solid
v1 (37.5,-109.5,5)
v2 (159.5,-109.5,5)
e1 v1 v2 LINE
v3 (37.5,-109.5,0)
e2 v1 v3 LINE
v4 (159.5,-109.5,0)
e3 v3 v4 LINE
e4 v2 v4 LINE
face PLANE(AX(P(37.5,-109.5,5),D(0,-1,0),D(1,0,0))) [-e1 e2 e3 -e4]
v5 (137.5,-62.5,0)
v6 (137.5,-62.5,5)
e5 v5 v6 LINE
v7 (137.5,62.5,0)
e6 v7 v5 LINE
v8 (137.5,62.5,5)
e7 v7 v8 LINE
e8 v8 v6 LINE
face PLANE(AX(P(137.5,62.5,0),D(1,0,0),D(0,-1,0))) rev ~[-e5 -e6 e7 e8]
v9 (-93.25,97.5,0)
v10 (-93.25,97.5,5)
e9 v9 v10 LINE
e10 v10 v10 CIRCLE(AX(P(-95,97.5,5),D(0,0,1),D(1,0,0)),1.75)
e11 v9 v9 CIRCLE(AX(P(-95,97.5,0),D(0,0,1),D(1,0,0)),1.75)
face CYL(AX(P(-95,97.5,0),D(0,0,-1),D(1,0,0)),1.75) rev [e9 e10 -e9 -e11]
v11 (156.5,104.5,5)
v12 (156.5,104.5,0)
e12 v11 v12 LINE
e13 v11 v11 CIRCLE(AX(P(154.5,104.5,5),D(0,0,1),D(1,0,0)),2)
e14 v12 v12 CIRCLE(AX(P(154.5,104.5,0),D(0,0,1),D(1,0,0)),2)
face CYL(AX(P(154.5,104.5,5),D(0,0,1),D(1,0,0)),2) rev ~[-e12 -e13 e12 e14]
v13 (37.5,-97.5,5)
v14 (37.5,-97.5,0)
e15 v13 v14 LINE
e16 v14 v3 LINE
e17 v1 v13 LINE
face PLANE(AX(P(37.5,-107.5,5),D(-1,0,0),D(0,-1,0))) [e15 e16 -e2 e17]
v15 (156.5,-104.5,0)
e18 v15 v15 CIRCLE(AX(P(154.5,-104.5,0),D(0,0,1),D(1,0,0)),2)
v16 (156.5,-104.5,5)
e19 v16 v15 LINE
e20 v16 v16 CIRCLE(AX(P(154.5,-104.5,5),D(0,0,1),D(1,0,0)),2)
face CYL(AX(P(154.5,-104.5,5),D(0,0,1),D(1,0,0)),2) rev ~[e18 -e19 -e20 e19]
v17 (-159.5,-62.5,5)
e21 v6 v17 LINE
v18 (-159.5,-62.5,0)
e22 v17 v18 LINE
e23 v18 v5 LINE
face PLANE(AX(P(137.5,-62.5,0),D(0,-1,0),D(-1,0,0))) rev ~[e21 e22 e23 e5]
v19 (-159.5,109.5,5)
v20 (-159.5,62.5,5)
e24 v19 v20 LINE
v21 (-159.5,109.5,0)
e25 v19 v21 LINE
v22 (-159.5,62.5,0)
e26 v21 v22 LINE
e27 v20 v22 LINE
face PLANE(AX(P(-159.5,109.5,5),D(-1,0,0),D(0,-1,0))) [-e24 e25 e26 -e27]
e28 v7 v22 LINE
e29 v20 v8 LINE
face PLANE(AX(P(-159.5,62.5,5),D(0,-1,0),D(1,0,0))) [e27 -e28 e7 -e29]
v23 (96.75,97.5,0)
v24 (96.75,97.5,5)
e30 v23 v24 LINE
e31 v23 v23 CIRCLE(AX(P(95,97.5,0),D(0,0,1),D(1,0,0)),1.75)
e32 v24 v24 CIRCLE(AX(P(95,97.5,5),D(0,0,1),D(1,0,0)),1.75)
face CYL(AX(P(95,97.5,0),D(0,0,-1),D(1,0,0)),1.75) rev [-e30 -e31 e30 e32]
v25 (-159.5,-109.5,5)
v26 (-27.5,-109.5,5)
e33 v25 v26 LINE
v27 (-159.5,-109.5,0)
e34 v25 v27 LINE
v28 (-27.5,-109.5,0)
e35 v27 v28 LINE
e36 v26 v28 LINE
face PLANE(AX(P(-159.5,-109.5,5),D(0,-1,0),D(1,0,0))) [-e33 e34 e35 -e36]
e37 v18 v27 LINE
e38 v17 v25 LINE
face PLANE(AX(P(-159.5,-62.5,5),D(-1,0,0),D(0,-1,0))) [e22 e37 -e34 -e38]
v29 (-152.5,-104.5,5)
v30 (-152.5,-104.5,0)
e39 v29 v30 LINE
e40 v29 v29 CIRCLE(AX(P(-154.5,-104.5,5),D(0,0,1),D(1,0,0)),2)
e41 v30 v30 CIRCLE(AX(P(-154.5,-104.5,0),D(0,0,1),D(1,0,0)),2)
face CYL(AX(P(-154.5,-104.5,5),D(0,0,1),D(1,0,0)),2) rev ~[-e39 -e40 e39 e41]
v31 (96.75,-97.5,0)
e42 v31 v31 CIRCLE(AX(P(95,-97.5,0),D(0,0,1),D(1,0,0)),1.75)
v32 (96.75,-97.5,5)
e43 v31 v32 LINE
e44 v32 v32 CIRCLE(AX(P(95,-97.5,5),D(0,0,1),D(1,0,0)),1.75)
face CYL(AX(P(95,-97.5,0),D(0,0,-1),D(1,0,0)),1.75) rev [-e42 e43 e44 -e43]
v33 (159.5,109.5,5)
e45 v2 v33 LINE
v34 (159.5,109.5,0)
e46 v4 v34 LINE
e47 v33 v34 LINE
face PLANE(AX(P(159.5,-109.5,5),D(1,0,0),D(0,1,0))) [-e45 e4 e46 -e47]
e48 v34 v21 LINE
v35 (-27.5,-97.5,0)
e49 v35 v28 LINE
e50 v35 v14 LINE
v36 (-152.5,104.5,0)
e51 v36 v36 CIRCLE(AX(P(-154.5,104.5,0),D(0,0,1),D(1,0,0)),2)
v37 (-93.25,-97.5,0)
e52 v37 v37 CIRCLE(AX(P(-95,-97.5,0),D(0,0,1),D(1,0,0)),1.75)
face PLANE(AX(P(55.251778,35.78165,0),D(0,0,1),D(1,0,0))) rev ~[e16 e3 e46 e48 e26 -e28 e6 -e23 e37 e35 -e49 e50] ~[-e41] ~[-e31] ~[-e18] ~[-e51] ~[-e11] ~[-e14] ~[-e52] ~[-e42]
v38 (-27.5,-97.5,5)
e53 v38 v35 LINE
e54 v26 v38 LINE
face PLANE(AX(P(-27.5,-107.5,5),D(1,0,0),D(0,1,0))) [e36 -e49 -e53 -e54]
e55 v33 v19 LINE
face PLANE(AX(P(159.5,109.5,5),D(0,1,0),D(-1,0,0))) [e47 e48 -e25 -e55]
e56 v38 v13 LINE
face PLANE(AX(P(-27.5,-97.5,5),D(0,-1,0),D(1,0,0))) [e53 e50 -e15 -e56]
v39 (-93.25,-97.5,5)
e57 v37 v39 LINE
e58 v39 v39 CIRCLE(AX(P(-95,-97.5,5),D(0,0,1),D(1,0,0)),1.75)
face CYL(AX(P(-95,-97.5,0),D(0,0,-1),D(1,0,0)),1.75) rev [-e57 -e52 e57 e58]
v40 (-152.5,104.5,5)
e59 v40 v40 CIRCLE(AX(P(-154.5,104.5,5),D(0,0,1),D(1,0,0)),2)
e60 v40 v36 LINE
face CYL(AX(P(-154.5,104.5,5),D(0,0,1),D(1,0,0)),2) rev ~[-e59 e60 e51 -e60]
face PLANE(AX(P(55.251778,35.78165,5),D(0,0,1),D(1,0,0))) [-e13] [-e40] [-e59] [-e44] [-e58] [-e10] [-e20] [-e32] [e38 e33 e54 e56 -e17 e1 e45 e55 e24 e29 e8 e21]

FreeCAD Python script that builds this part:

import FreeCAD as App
import Part
import Sketcher

V = App.Vector

doc = App.newDocument("Part")
body = doc.addObject("PartDesign::Body", "Body")

sketch1 = body.newObject("Sketcher::SketchObject", "Sketch")
sketch1.AttachmentSupport = (doc.getObject("XY_Plane"), [""])
sketch1.MapMode = "FlatFace"
sketch1.addGeometry([
    Part.LineSegment(V(157.5, 107.5, 0), V(-157.5, 107.5, 0)),
    Part.LineSegment(V(-157.5, 107.5, 0), V(-157.5, 62.5, 0)),
    Part.LineSegment(V(-157.5, 62.5, 0), V(137.5, 62.5, 0)),
    Part.LineSegment(V(137.5, 62.5, 0), V(137.5, -62.5, 0)),
    Part.LineSegment(V(137.5, -62.5, 0), V(-157.5, -62.5, 0)),
    Part.LineSegment(V(-157.5, -62.5, 0), V(-157.5, -107.5, 0)),
    Part.LineSegment(V(-157.5, -107.5, 0), V(157.5, -107.5, 0)),
    Part.LineSegment(V(157.5, -107.5, 0), V(157.5, 107.5, 0)),
    Part.Circle(V(-95, -97.5, 0), V(0, 0, 1), 1.75),
    Part.Circle(V(95, -97.5, 0), V(0, 0, 1), 1.75),
    Part.Circle(V(-95, 97.5, 0), V(0, 0, 1), 1.75),
    Part.Circle(V(95, 97.5, 0), V(0, 0, 1), 1.75),
], False)
sketch1.addConstraint([
    Sketcher.Constraint("Coincident", 0, 2, 1, 1),
    Sketcher.Constraint("Coincident", 1, 2, 2, 1),
    Sketcher.Constraint("Coincident", 2, 2, 3, 1),
    Sketcher.Constraint("Coincident", 3, 2, 4, 1),
    Sketcher.Constraint("Coincident", 4, 2, 5, 1),
    Sketcher.Constraint("Coincident", 5, 2, 6, 1),
    Sketcher.Constraint("Coincident", 6, 2, 7, 1),
    Sketcher.Constraint("Coincident", 7, 2, 0, 1),
    Sketcher.Constraint("Horizontal", 0),
    Sketcher.Constraint("Vertical", 1),
    Sketcher.Constraint("Horizontal", 2),
    Sketcher.Constraint("Vertical", 3),
    Sketcher.Constraint("Horizontal", 4),
    Sketcher.Constraint("Vertical", 5),
    Sketcher.Constraint("Horizontal", 6),
    Sketcher.Constraint("Vertical", 7),
    Sketcher.Constraint("Equal", 8, 9),
    Sketcher.Constraint("Equal", 9, 10),
    Sketcher.Constraint("Equal", 10, 11),
    Sketcher.Constraint("Symmetric", 9, 3, 10, 3, -1, 1),
    Sketcher.Constraint("Symmetric", 8, 3, 11, 3, -1, 1),
    Sketcher.Constraint("Symmetric", 0, 2, 6, 2, -1, 1),
    Sketcher.Constraint("Symmetric", 8, 3, 9, 3, -2),
    Sketcher.Constraint("Symmetric", 1, 2, 4, 2, -1),
    Sketcher.Constraint("Diameter", 8, 3.5),
    Sketcher.Constraint("DistanceX", 0, 2, 0, 1, 315.0),
    Sketcher.Constraint("DistanceX", 2, 1, 2, 2, 295.0),
    Sketcher.Constraint("DistanceY", 1, 2, 1, 1, 45.0),
    Sketcher.Constraint("DistanceY", 3, 2, 3, 1, 125.0),
    Sketcher.Constraint("DistanceX", 8, 3, -1, 1, 95.0),
    Sketcher.Constraint("DistanceY", 8, 3, 10, 3, 195.0),
])
pad1 = body.newObject("PartDesign::Pad", "Pad")
pad1.Profile = sketch1
pad1.Length = 5

sketch2 = body.newObject("Sketcher::SketchObject", "Sketch001")
sketch2.AttachmentSupport = (doc.getObject("XY_Plane"), [""])
sketch2.MapMode = "FlatFace"
sketch2.AttachmentOffset = App.Placement(V(0, 0, 5), App.Rotation())
sketch2.addGeometry([
    Part.Circle(V(-154.5, -104.5, 0), V(0, 0, 1), 2),
    Part.Circle(V(154.5, 274.5, 0), V(0, 0, 1), 2),
    Part.Circle(V(-59.578675, 247.267262, 0), V(0, 0, 1), 2),
    Part.LineSegment(V(-27.5, -97.5, 0), V(-27.5, -107.5, 0)),
    Part.LineSegment(V(-27.5, -107.5, 0), V(37.5, -107.5, 0)),
    Part.LineSegment(V(37.5, -107.5, 0), V(37.5, -97.5, 0)),
    Part.LineSegment(V(37.5, -97.5, 0), V(-27.5, -97.5, 0)),
    Part.Circle(V(154.5, -104.5, 0), V(0, 0, 1), 2),
    Part.Circle(V(-154.5, 104.5, 0), V(0, 0, 1), 2),
    Part.Circle(V(154.5, 104.5, 0), V(0, 0, 1), 2),
], False)
sketch2.addConstraint([
    Sketcher.Constraint("Coincident", 3, 2, 4, 1),
    Sketcher.Constraint("Coincident", 4, 2, 5, 1),
    Sketcher.Constraint("Coincident", 5, 2, 6, 1),
    Sketcher.Constraint("Coincident", 6, 2, 3, 1),
    Sketcher.Constraint("Vertical", 3),
    Sketcher.Constraint("Horizontal", 4),
    Sketcher.Constraint("Vertical", 5),
    Sketcher.Constraint("Horizontal", 6),
    Sketcher.Constraint("Equal", 0, 1),
    Sketcher.Constraint("Equal", 1, 2),
    Sketcher.Constraint("Equal", 2, 7),
    Sketcher.Constraint("Equal", 7, 8),
    Sketcher.Constraint("Equal", 8, 9),
    Sketcher.Constraint("Symmetric", 7, 3, 8, 3, -1, 1),
    Sketcher.Constraint("Symmetric", 0, 3, 9, 3, -1, 1),
    Sketcher.Constraint("Symmetric", 0, 3, 7, 3, -2),
    Sketcher.Constraint("Vertical", 1, 3, 7, 3),
    Sketcher.Constraint("Diameter", 0, 4.0),
    Sketcher.Constraint("DistanceX", 4, 1, 4, 2, 65.0),
    Sketcher.Constraint("DistanceY", 3, 2, 3, 1, 10.0),
    Sketcher.Constraint("DistanceX", 0, 3, 1, 3, 309.0),
    Sketcher.Constraint("DistanceY", 0, 3, 1, 3, 379.0),
    Sketcher.Constraint("DistanceY", 0, 3, 8, 3, 209.0),
    Sketcher.Constraint("DistanceX", 0, 3, 3, 2, 127.0),
    Sketcher.Constraint("DistanceY", 3, 2, 0, 3, 3.0),
    Sketcher.Constraint("DistanceY", -1, 1, 2, 3, 247.267262),
    Sketcher.Constraint("DistanceX", 2, 3, -1, 1, 59.578675),
])
pocket1 = body.newObject("PartDesign::Pocket", "Pocket")
pocket1.Profile = sketch2
pocket1.Type = "ThroughAll"

sketch3 = body.newObject("Sketcher::SketchObject", "Sketch002")
sketch3.AttachmentSupport = (doc.getObject("XY_Plane"), [""])
sketch3.MapMode = "FlatFace"
sketch3.AttachmentOffset = App.Placement(V(0, 0, 5), App.Rotation())
sketch3.addGeometry([
    Part.LineSegment(V(-157.5, 62.5, 0), V(-157.5, 107.5, 0)),
    Part.LineSegment(V(-157.5, 107.5, 0), V(157.5, 107.5, 0)),
    Part.LineSegment(V(157.5, 107.5, 0), V(157.5, -107.5, 0)),
    Part.LineSegment(V(157.5, -107.5, 0), V(37.5, -107.5, 0)),
    Part.LineSegment(V(37.5, -107.5, 0), V(37.5, -109.5, 0)),
    Part.LineSegment(V(37.5, -109.5, 0), V(159.5, -109.5, 0)),
    Part.LineSegment(V(159.5, -109.5, 0), V(159.5, 109.5, 0)),
    Part.LineSegment(V(159.5, 109.5, 0), V(-159.5, 109.5, 0)),
    Part.LineSegment(V(-159.5, 109.5, 0), V(-159.5, 62.5, 0)),
    Part.LineSegment(V(-159.5, 62.5, 0), V(-157.5, 62.5, 0)),
    Part.LineSegment(V(-27.5, -107.5, 0), V(-157.5, -107.5, 0)),
    Part.LineSegment(V(-157.5, -107.5, 0), V(-157.5, -62.5, 0)),
    Part.LineSegment(V(-157.5, -62.5, 0), V(-159.5, -62.5, 0)),
    Part.LineSegment(V(-159.5, -62.5, 0), V(-159.5, -109.5, 0)),
    Part.LineSegment(V(-159.5, -109.5, 0), V(-27.5, -109.5, 0)),
    Part.LineSegment(V(-27.5, -109.5, 0), V(-27.5, -107.5, 0)),
], False)
sketch3.addConstraint([
    Sketcher.Constraint("Coincident", 0, 2, 1, 1),
    Sketcher.Constraint("Coincident", 1, 2, 2, 1),
    Sketcher.Constraint("Coincident", 2, 2, 3, 1),
    Sketcher.Constraint("Coincident", 3, 2, 4, 1),
    Sketcher.Constraint("Coincident", 4, 2, 5, 1),
    Sketcher.Constraint("Coincident", 5, 2, 6, 1),
    Sketcher.Constraint("Coincident", 6, 2, 7, 1),
    Sketcher.Constraint("Coincident", 7, 2, 8, 1),
    Sketcher.Constraint("Coincident", 8, 2, 9, 1),
    Sketcher.Constraint("Coincident", 9, 2, 0, 1),
    Sketcher.Constraint("Coincident", 10, 2, 11, 1),
    Sketcher.Constraint("Coincident", 11, 2, 12, 1),
    Sketcher.Constraint("Coincident", 12, 2, 13, 1),
    Sketcher.Constraint("Coincident", 13, 2, 14, 1),
    Sketcher.Constraint("Coincident", 14, 2, 15, 1),
    Sketcher.Constraint("Coincident", 15, 2, 10, 1),
    Sketcher.Constraint("Vertical", 0),
    Sketcher.Constraint("Horizontal", 1),
    Sketcher.Constraint("Vertical", 2),
    Sketcher.Constraint("Horizontal", 3),
    Sketcher.Constraint("Vertical", 4),
    Sketcher.Constraint("Horizontal", 5),
    Sketcher.Constraint("Vertical", 6),
    Sketcher.Constraint("Horizontal", 7),
    Sketcher.Constraint("Vertical", 8),
    Sketcher.Constraint("Horizontal", 9),
    Sketcher.Constraint("Horizontal", 10),
    Sketcher.Constraint("Vertical", 11),
    Sketcher.Constraint("Horizontal", 12),
    Sketcher.Constraint("Vertical", 13),
    Sketcher.Constraint("Horizontal", 14),
    Sketcher.Constraint("Vertical", 15),
    Sketcher.Constraint("Symmetric", 0, 2, 2, 2, -1, 1),
    Sketcher.Constraint("Symmetric", 5, 2, 7, 2, -1, 1),
    Sketcher.Constraint("Symmetric", 1, 2, 10, 2, -1, 1),
    Sketcher.Constraint("Symmetric", 6, 2, 13, 2, -1, 1),
    Sketcher.Constraint("Equal", 12, 4),
    Sketcher.Constraint("Equal", 0, 11),
    Sketcher.Constraint("DistanceX", 1, 1, 1, 2, 315.0),
    Sketcher.Constraint("DistanceX", 3, 2, 3, 1, 120.0),
    Sketcher.Constraint("DistanceX", 5, 1, 5, 2, 122.0),
    Sketcher.Constraint("DistanceX", 10, 2, 10, 1, 130.0),
    Sketcher.Constraint("DistanceY", 0, 1, 0, 2, 45.0),
    Sketcher.Constraint("DistanceY", 2, 2, 2, 1, 215.0),
])
pad2 = body.newObject("PartDesign::Pad", "Pad001")
pad2.Profile = sketch3
pad2.Length = 5
pad2.Reversed = True

doc.recompute()
